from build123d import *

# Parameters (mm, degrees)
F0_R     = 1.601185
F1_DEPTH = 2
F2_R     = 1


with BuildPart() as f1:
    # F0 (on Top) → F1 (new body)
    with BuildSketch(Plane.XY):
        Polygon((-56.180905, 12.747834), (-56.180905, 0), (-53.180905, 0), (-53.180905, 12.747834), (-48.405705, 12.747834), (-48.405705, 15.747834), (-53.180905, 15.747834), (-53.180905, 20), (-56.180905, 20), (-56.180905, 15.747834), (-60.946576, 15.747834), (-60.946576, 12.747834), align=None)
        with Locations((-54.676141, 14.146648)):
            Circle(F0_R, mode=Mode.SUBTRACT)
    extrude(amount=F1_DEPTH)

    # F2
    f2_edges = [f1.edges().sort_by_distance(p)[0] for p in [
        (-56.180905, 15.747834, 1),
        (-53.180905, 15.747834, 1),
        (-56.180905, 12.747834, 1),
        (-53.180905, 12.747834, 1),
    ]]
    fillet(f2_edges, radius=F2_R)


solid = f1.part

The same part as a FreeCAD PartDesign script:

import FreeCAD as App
import Part
import Sketcher

V = App.Vector
Q = App.Units.Quantity


def edges_at(feature, points):
    """Names of the edges that pass closest to the given points."""
    edges = feature.Shape.Edges
    near = lambda p: min(range(len(edges)), key=lambda i: edges[i].distToShape(Part.Vertex(*p))[0])
    return sorted({f"Edge{near(p) + 1}" for p in points})

doc = App.newDocument("Part")
body = doc.addObject("PartDesign::Body", "Body")

# Sketch on XY plane
sketch1 = body.newObject("Sketcher::SketchObject", "Sketch")
sketch1.AttachmentSupport = (doc.getObject("XY_Plane"), [""])
sketch1.MapMode = "FlatFace"
sketch1.addGeometry([
    Part.LineSegment(V(-56.2, 12.7, 0), V(-56.2, 0, 0)),  # 0
    Part.LineSegment(V(-56.2, 0, 0), V(-53.2, 0, 0)),  # 1
    Part.LineSegment(V(-53.2, 0, 0), V(-53.2, 12.7, 0)),  # 2
    Part.LineSegment(V(-53.2, 12.7, 0), V(-48.4, 12.7, 0)),  # 3
    Part.LineSegment(V(-48.4, 12.7, 0), V(-48.4, 15.7, 0)),  # 4
    Part.LineSegment(V(-48.4, 15.7, 0), V(-53.2, 15.7, 0)),  # 5
    Part.LineSegment(V(-53.2, 15.7, 0), V(-53.2, 20, 0)),  # 6
    Part.LineSegment(V(-53.2, 20, 0), V(-56.2, 20, 0)),  # 7
    Part.LineSegment(V(-56.2, 20, 0), V(-56.2, 15.7, 0)),  # 8
    Part.LineSegment(V(-56.2, 15.7, 0), V(-60.9, 15.7, 0)),  # 9
    Part.LineSegment(V(-60.9, 15.7, 0), V(-60.9, 12.7, 0)),  # 10
    Part.LineSegment(V(-60.9, 12.7, 0), V(-56.2, 12.7, 0)),  # 11
    Part.Circle(V(-54.7, 14.1, 0), V(0, 0, 1), 1.6),  # 12
], False)
sketch1.addConstraint([
    Sketcher.Constraint("Coincident", 0, 2, 1, 1),
    Sketcher.Constraint("Coincident", 1, 2, 2, 1),
    Sketcher.Constraint("Coincident", 2, 2, 3, 1),
    Sketcher.Constraint("Coincident", 3, 2, 4, 1),
    Sketcher.Constraint("Coincident", 4, 2, 5, 1),
    Sketcher.Constraint("Coincident", 5, 2, 6, 1),
    Sketcher.Constraint("Coincident", 6, 2, 7, 1),
    Sketcher.Constraint("Coincident", 7, 2, 8, 1),
    Sketcher.Constraint("Coincident", 8, 2, 9, 1),
    Sketcher.Constraint("Coincident", 9, 2, 10, 1),
    Sketcher.Constraint("Coincident", 10, 2, 11, 1),
    Sketcher.Constraint("Coincident", 11, 2, 0, 1),
    Sketcher.Constraint("Vertical", 0),
    Sketcher.Constraint("Horizontal", 1),
    Sketcher.Constraint("Vertical", 2),
    Sketcher.Constraint("Horizontal", 3),
    Sketcher.Constraint("Vertical", 4),
    Sketcher.Constraint("Horizontal", 5),
    Sketcher.Constraint("Vertical", 6),
    Sketcher.Constraint("Horizontal", 7),
    Sketcher.Constraint("Vertical", 8),
    Sketcher.Constraint("Horizontal", 9),
    Sketcher.Constraint("Vertical", 10),
    Sketcher.Constraint("Horizontal", 11),
    Sketcher.Constraint("PointOnObject", 0, 2, -1),
    Sketcher.Constraint("Horizontal", 5, 2, 8, 2),
    Sketcher.Constraint("Horizontal", 3, 2, 10, 2),
    Sketcher.Constraint("Vertical", 2, 2, 5, 2),
    Sketcher.Constraint("Vertical", 0, 2, 7, 2),
    Sketcher.Constraint("Equal", 7, 4),
    Sketcher.Constraint("DistanceX", 1, 1, 1, 2, Q("3 mm")),
    Sketcher.Constraint("DistanceY", -1, 1, 6, 2, Q("20 mm")),
    Sketcher.Constraint("Diameter", 12, Q("3.20237 mm")),
    Sketcher.Constraint("DistanceX", 3, 1, 3, 2, Q("4.7752 mm")),
    Sketcher.Constraint("DistanceX", 9, 2, 9, 1, Q("4.765671 mm")),
    Sketcher.Constraint("DistanceY", 0, 2, 0, 1, Q("12.747834 mm")),
    Sketcher.Constraint("DistanceX", 12, 3, -1, 1, Q("54.676141 mm")),
    Sketcher.Constraint("DistanceY", -1, 1, 12, 3, Q("14.146648 mm")),
    Sketcher.Constraint("DistanceX", 0, 2, -1, 1, Q("56.180905 mm")),
])
pad1 = body.newObject("PartDesign::Pad", "Pad")
pad1.Profile = sketch1
pad1.Length = 2
doc.recompute()

fillet = body.newObject("PartDesign::Fillet", "Fillet")
fillet.Base = (pad1, edges_at(pad1, [
    (-56.181, 15.748, 1),
    (-53.181, 15.748, 1),
    (-56.181, 12.748, 1),
    (-53.181, 12.748, 1),
]))
fillet.Radius = 1

doc.recompute()
